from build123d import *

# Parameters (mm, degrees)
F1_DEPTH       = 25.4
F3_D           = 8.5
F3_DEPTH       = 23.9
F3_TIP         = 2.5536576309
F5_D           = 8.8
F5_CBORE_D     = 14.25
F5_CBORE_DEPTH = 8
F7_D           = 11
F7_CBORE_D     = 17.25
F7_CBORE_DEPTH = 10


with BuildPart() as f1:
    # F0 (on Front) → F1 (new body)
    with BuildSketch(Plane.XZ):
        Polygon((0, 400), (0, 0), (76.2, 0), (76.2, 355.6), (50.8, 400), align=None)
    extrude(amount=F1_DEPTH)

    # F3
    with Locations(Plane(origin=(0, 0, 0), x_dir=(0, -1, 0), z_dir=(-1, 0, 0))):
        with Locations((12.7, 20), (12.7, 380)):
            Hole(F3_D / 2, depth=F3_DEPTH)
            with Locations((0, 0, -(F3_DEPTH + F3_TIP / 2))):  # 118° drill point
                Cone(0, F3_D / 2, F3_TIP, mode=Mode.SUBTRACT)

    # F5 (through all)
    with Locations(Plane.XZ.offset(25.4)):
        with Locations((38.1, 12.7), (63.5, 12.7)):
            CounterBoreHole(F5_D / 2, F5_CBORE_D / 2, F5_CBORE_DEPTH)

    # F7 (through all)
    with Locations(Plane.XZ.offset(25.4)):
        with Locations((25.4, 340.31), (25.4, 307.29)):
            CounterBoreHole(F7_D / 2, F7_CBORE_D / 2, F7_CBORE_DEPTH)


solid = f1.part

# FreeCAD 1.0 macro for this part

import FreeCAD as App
import Part
import Sketcher

V = App.Vector
Q = App.Units.Quantity


def add_polygon(sketch, points):
    """Adds a closed chain of lines whose ends are joined by coincident constraints."""
    first, n = sketch.GeometryCount, len(points)
    for a, b in zip(points, points[1:] + points[:1]):
        sketch.addGeometry(Part.LineSegment(App.Vector(*a, 0), App.Vector(*b, 0)), False)
    for i in range(n):
        sketch.addConstraint(Sketcher.Constraint("Coincident", first + i, 2, first + (i + 1) % n, 1))

doc = App.newDocument("Part")
body = doc.addObject("PartDesign::Body", "Body")

sketch1 = body.newObject("Sketcher::SketchObject", "Sketch")
sketch1.AttachmentSupport = (doc.getObject("XZ_Plane"), [""])
sketch1.MapMode = "FlatFace"
add_polygon(sketch1, [(0, 400), (0, 0), (76.2, 0), (76.2, 355.6), (50.8, 400)])
sketch1.addConstraint([
    Sketcher.Constraint("Vertical", 0),
    Sketcher.Constraint("Horizontal", 1),
    Sketcher.Constraint("Vertical", 2),
    Sketcher.Constraint("Horizontal", 4),
    Sketcher.Constraint("Coincident", 0, 2, -1, 1),
    Sketcher.Constraint("DistanceY", 0, 2, 0, 1, Q("400 mm")),
    Sketcher.Constraint("DistanceX", 1, 1, 1, 2, Q("76.2 mm")),
    Sketcher.Constraint("DistanceX", 4, 2, 4, 1, Q("50.8 mm")),
    Sketcher.Constraint("DistanceY", 2, 1, 2, 2, Q("355.6 mm")),
])
pad1 = body.newObject("PartDesign::Pad", "Pad")
pad1.Profile = sketch1
pad1.Length = 25.4

sketch2 = body.newObject("Sketcher::SketchObject", "Sketch001")
sketch2.AttachmentSupport = (doc.getObject("YZ_Plane"), [""])
sketch2.MapMode = "FlatFace"
sketch2.addGeometry([
    Part.Circle(V(-12.7, 20, 0), V(0, 0, 1), 4.25),
    Part.Circle(V(-12.7, 380, 0), V(0, 0, 1), 4.25),
], False)
sketch2.addConstraint([
    Sketcher.Constraint("Equal", 0, 1),
    Sketcher.Constraint("Vertical", 0, 3, 1, 3),
    Sketcher.Constraint("Diameter", 0, Q("8.5 mm")),
    Sketcher.Constraint("DistanceY", -1, 1, 0, 3, Q("20 mm")),
    Sketcher.Constraint("DistanceY", -1, 1, 1, 3, Q("380 mm")),
    Sketcher.Constraint("DistanceX", 0, 3, -1, 1, Q("12.7 mm")),
])
doc.recompute()
hole = body.newObject("PartDesign::Hole", "Hole")
hole.Profile = sketch2
hole.ThreadType = "None"
hole.Diameter = 8.5
hole.DepthType = "Dimension"
hole.Depth = 23.9
hole.DrillPoint = "Angled"
hole.DrillPointAngle = 118
hole.Reversed = True

sketch3 = body.newObject("Sketcher::SketchObject", "Sketch002")
sketch3.AttachmentSupport = (doc.getObject("XZ_Plane"), [""])
sketch3.MapMode = "FlatFace"
sketch3.AttachmentOffset = App.Placement(V(0, 0, 25.4), App.Rotation())
sketch3.addGeometry([
    Part.Circle(V(38.1, 12.7, 0), V(0, 0, 1), 4.4),
    Part.Circle(V(63.5, 12.7, 0), V(0, 0, 1), 4.4),
], False)
sketch3.addConstraint([
    Sketcher.Constraint("Equal", 0, 1),
    Sketcher.Constraint("Horizontal", 0, 3, 1, 3),
    Sketcher.Constraint("Diameter", 0, Q("8.8 mm")),
    Sketcher.Constraint("DistanceX", -1, 1, 0, 3, Q("38.1 mm")),
    Sketcher.Constraint("DistanceY", -1, 1, 0, 3, Q("12.7 mm")),
    Sketcher.Constraint("DistanceX", -1, 1, 1, 3, Q("63.5 mm")),
])
doc.recompute()
hole2 = body.newObject("PartDesign::Hole", "Hole001")
hole2.Profile = sketch3
hole2.ThreadType = "None"
hole2.Diameter = 8.8
hole2.DepthType = "ThroughAll"
hole2.HoleCutType = "Counterbore"
hole2.HoleCutDiameter = 14.25
hole2.HoleCutDepth = 8

sketch4 = body.newObject("Sketcher::SketchObject", "Sketch003")
sketch4.AttachmentSupport = (doc.getObject("XZ_Plane"), [""])
sketch4.MapMode = "FlatFace"
sketch4.AttachmentOffset = App.Placement(V(0, 0, 25.4), App.Rotation())
sketch4.addGeometry([
    Part.Circle(V(25.4, 340.31, 0), V(0, 0, 1), 5.5),
    Part.Circle(V(25.4, 307.29, 0), V(0, 0, 1), 5.5),
], False)
sketch4.addConstraint([
    Sketcher.Constraint("Equal", 0, 1),
    Sketcher.Constraint("Vertical", 0, 3, 1, 3),
    Sketcher.Constraint("Diameter", 0, Q("11 mm")),
    Sketcher.Constraint("DistanceX", -1, 1, 0, 3, Q("25.4 mm")),
    Sketcher.Constraint("DistanceY", -1, 1, 0, 3, Q("340.31 mm")),
    Sketcher.Constraint("DistanceY", -1, 1, 1, 3, Q("307.29 mm")),
])
doc.recompute()
hole3 = body.newObject("PartDesign::Hole", "Hole002")
hole3.Profile = sketch4
hole3.ThreadType = "None"
hole3.Diameter = 11
hole3.DepthType = "ThroughAll"
hole3.HoleCutType = "Counterbore"
hole3.HoleCutDiameter = 17.25
hole3.HoleCutDepth = 10

doc.recompute()
